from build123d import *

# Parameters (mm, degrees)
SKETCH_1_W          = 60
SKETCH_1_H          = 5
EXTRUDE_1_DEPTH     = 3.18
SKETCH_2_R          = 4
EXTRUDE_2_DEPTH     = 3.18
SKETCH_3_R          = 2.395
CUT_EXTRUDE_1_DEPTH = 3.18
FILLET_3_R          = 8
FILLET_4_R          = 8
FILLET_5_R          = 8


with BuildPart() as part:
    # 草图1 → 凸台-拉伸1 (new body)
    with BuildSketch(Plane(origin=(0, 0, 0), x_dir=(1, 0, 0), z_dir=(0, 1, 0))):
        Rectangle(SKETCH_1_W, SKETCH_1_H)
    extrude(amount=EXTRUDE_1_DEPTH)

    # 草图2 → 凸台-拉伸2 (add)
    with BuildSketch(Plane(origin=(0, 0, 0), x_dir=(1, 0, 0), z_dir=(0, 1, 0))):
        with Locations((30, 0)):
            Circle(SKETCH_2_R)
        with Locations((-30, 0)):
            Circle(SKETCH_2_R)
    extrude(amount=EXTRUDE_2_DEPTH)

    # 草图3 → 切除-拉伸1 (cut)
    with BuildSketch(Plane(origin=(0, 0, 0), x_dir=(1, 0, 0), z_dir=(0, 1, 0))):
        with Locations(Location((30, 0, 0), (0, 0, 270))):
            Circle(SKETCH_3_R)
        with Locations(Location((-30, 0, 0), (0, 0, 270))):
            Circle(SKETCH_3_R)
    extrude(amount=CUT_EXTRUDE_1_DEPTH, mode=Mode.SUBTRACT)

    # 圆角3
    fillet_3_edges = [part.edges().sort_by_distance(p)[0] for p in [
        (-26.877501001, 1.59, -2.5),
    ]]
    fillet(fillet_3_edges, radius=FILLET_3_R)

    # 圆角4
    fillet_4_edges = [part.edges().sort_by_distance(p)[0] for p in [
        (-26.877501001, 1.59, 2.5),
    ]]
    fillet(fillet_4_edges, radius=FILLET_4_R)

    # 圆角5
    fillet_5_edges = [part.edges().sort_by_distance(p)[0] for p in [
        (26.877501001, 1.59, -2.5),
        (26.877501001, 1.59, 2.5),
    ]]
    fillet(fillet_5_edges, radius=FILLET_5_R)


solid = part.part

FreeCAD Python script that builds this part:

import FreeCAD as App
import Part
import Sketcher

V = App.Vector
Q = App.Units.Quantity


def edges_at(feature, points):
    """Names of the edges that pass closest to the given points."""
    edges = feature.Shape.Edges
    near = lambda p: min(range(len(edges)), key=lambda i: edges[i].distToShape(Part.Vertex(*p))[0])
    return sorted({f"Edge{near(p) + 1}" for p in points})

doc = App.newDocument("Part")
body = doc.addObject("PartDesign::Body", "Body")

# Sketch on XZ plane
sketch1 = body.newObject("Sketcher::SketchObject", "Sketch")
sketch1.AttachmentSupport = (doc.getObject("XZ_Plane"), [""])
sketch1.MapMode = "FlatFace"
sketch1.addGeometry(Part.LineSegment(V(-30, -2, 0), V(-30, 2, 0)), False)
sketch1.addGeometry(Part.LineSegment(V(-30, 2, 0), V(30, 2, 0)), False)
sketch1.addGeometry(Part.LineSegment(V(30, 2, 0), V(30, -2, 0)), False)
sketch1.addGeometry(Part.LineSegment(V(30, -2, 0), V(-30, -2, 0)), False)
sketch1.addConstraint(Sketcher.Constraint("Coincident", 0, 2, 1, 1))
sketch1.addConstraint(Sketcher.Constraint("Coincident", 1, 2, 2, 1))
sketch1.addConstraint(Sketcher.Constraint("Coincident", 2, 2, 3, 1))
sketch1.addConstraint(Sketcher.Constraint("Coincident", 3, 2, 0, 1))
sketch1.addConstraint(Sketcher.Constraint("Vertical", 0))
sketch1.addConstraint(Sketcher.Constraint("Horizontal", 1))
sketch1.addConstraint(Sketcher.Constraint("Vertical", 2))
sketch1.addConstraint(Sketcher.Constraint("Horizontal", 3))
sketch1.addConstraint(Sketcher.Constraint("Symmetric", 0, 2, 2, 2, -1, 1))
sketch1.addConstraint(Sketcher.Constraint("DistanceX", 1, 1, 1, 2, Q("60 mm")))
sketch1.addConstraint(Sketcher.Constraint("DistanceY", 0, 1, 0, 2, Q("5 mm")))
pad1 = body.newObject("PartDesign::Pad", "Pad")
pad1.Profile = sketch1
pad1.Length = 3.18
pad1.Reversed = True

# Sketch on XZ plane
sketch2 = body.newObject("Sketcher::SketchObject", "Sketch001")
sketch2.AttachmentSupport = (doc.getObject("XZ_Plane"), [""])
sketch2.MapMode = "FlatFace"
sketch2.addGeometry(Part.Circle(V(30, 0, 0), V(0, 0, 1), 4), False)
sketch2.addGeometry(Part.Circle(V(-30, 0, 0), V(0, 0, 1), 4), False)
sketch2.addConstraint(Sketcher.Constraint("Equal", 0, 1))
sketch2.addConstraint(Sketcher.Constraint("Symmetric", 0, 3, 1, 3, -1, 1))
sketch2.addConstraint(Sketcher.Constraint("PointOnObject", 0, 3, -1))
sketch2.addConstraint(Sketcher.Constraint("Diameter", 0, Q("8 mm")))
sketch2.addConstraint(Sketcher.Constraint("DistanceX", -1, 1, 0, 3, Q("30 mm")))
pad2 = body.newObject("PartDesign::Pad", "Pad001")
pad2.Profile = sketch2
pad2.Length = 3.18
pad2.Reversed = True

# Sketch on XZ plane
sketch3 = body.newObject("Sketcher::SketchObject", "Sketch002")
sketch3.AttachmentSupport = (doc.getObject("XZ_Plane"), [""])
sketch3.MapMode = "FlatFace"
sketch3.addGeometry(Part.Circle(V(30, 0, 0), V(0, 0, 1), 2.4), False)
sketch3.addGeometry(Part.Circle(V(-30, 0, 0), V(0, 0, 1), 2.4), False)
sketch3.addConstraint(Sketcher.Constraint("Equal", 0, 1))
sketch3.addConstraint(Sketcher.Constraint("Symmetric", 0, 3, 1, 3, -1, 1))
sketch3.addConstraint(Sketcher.Constraint("PointOnObject", 0, 3, -1))
sketch3.addConstraint(Sketcher.Constraint("Diameter", 0, Q("4.79 mm")))
sketch3.addConstraint(Sketcher.Constraint("DistanceX", -1, 1, 0, 3, Q("30 mm")))
pocket1 = body.newObject("PartDesign::Pocket", "Pocket")
pocket1.Profile = sketch3
pocket1.Length = 3.18
doc.recompute()

fillet = body.newObject("PartDesign::Fillet", "Fillet")
fillet.Base = (pocket1, edges_at(pocket1, [(-26.878, 1.59, -2.5)]))
fillet.Radius = 8
doc.recompute()

fillet2 = body.newObject("PartDesign::Fillet", "Fillet001")
fillet2.Base = (fillet, edges_at(fillet, [(-26.878, 1.59, 2.5)]))
fillet2.Radius = 8
doc.recompute()

fillet3 = body.newObject("PartDesign::Fillet", "Fillet002")
fillet3.Base = (fillet2, edges_at(fillet2, [(26.878, 1.59, -2.5), (26.878, 1.59, 2.5)]))
fillet3.Radius = 8

doc.recompute()
